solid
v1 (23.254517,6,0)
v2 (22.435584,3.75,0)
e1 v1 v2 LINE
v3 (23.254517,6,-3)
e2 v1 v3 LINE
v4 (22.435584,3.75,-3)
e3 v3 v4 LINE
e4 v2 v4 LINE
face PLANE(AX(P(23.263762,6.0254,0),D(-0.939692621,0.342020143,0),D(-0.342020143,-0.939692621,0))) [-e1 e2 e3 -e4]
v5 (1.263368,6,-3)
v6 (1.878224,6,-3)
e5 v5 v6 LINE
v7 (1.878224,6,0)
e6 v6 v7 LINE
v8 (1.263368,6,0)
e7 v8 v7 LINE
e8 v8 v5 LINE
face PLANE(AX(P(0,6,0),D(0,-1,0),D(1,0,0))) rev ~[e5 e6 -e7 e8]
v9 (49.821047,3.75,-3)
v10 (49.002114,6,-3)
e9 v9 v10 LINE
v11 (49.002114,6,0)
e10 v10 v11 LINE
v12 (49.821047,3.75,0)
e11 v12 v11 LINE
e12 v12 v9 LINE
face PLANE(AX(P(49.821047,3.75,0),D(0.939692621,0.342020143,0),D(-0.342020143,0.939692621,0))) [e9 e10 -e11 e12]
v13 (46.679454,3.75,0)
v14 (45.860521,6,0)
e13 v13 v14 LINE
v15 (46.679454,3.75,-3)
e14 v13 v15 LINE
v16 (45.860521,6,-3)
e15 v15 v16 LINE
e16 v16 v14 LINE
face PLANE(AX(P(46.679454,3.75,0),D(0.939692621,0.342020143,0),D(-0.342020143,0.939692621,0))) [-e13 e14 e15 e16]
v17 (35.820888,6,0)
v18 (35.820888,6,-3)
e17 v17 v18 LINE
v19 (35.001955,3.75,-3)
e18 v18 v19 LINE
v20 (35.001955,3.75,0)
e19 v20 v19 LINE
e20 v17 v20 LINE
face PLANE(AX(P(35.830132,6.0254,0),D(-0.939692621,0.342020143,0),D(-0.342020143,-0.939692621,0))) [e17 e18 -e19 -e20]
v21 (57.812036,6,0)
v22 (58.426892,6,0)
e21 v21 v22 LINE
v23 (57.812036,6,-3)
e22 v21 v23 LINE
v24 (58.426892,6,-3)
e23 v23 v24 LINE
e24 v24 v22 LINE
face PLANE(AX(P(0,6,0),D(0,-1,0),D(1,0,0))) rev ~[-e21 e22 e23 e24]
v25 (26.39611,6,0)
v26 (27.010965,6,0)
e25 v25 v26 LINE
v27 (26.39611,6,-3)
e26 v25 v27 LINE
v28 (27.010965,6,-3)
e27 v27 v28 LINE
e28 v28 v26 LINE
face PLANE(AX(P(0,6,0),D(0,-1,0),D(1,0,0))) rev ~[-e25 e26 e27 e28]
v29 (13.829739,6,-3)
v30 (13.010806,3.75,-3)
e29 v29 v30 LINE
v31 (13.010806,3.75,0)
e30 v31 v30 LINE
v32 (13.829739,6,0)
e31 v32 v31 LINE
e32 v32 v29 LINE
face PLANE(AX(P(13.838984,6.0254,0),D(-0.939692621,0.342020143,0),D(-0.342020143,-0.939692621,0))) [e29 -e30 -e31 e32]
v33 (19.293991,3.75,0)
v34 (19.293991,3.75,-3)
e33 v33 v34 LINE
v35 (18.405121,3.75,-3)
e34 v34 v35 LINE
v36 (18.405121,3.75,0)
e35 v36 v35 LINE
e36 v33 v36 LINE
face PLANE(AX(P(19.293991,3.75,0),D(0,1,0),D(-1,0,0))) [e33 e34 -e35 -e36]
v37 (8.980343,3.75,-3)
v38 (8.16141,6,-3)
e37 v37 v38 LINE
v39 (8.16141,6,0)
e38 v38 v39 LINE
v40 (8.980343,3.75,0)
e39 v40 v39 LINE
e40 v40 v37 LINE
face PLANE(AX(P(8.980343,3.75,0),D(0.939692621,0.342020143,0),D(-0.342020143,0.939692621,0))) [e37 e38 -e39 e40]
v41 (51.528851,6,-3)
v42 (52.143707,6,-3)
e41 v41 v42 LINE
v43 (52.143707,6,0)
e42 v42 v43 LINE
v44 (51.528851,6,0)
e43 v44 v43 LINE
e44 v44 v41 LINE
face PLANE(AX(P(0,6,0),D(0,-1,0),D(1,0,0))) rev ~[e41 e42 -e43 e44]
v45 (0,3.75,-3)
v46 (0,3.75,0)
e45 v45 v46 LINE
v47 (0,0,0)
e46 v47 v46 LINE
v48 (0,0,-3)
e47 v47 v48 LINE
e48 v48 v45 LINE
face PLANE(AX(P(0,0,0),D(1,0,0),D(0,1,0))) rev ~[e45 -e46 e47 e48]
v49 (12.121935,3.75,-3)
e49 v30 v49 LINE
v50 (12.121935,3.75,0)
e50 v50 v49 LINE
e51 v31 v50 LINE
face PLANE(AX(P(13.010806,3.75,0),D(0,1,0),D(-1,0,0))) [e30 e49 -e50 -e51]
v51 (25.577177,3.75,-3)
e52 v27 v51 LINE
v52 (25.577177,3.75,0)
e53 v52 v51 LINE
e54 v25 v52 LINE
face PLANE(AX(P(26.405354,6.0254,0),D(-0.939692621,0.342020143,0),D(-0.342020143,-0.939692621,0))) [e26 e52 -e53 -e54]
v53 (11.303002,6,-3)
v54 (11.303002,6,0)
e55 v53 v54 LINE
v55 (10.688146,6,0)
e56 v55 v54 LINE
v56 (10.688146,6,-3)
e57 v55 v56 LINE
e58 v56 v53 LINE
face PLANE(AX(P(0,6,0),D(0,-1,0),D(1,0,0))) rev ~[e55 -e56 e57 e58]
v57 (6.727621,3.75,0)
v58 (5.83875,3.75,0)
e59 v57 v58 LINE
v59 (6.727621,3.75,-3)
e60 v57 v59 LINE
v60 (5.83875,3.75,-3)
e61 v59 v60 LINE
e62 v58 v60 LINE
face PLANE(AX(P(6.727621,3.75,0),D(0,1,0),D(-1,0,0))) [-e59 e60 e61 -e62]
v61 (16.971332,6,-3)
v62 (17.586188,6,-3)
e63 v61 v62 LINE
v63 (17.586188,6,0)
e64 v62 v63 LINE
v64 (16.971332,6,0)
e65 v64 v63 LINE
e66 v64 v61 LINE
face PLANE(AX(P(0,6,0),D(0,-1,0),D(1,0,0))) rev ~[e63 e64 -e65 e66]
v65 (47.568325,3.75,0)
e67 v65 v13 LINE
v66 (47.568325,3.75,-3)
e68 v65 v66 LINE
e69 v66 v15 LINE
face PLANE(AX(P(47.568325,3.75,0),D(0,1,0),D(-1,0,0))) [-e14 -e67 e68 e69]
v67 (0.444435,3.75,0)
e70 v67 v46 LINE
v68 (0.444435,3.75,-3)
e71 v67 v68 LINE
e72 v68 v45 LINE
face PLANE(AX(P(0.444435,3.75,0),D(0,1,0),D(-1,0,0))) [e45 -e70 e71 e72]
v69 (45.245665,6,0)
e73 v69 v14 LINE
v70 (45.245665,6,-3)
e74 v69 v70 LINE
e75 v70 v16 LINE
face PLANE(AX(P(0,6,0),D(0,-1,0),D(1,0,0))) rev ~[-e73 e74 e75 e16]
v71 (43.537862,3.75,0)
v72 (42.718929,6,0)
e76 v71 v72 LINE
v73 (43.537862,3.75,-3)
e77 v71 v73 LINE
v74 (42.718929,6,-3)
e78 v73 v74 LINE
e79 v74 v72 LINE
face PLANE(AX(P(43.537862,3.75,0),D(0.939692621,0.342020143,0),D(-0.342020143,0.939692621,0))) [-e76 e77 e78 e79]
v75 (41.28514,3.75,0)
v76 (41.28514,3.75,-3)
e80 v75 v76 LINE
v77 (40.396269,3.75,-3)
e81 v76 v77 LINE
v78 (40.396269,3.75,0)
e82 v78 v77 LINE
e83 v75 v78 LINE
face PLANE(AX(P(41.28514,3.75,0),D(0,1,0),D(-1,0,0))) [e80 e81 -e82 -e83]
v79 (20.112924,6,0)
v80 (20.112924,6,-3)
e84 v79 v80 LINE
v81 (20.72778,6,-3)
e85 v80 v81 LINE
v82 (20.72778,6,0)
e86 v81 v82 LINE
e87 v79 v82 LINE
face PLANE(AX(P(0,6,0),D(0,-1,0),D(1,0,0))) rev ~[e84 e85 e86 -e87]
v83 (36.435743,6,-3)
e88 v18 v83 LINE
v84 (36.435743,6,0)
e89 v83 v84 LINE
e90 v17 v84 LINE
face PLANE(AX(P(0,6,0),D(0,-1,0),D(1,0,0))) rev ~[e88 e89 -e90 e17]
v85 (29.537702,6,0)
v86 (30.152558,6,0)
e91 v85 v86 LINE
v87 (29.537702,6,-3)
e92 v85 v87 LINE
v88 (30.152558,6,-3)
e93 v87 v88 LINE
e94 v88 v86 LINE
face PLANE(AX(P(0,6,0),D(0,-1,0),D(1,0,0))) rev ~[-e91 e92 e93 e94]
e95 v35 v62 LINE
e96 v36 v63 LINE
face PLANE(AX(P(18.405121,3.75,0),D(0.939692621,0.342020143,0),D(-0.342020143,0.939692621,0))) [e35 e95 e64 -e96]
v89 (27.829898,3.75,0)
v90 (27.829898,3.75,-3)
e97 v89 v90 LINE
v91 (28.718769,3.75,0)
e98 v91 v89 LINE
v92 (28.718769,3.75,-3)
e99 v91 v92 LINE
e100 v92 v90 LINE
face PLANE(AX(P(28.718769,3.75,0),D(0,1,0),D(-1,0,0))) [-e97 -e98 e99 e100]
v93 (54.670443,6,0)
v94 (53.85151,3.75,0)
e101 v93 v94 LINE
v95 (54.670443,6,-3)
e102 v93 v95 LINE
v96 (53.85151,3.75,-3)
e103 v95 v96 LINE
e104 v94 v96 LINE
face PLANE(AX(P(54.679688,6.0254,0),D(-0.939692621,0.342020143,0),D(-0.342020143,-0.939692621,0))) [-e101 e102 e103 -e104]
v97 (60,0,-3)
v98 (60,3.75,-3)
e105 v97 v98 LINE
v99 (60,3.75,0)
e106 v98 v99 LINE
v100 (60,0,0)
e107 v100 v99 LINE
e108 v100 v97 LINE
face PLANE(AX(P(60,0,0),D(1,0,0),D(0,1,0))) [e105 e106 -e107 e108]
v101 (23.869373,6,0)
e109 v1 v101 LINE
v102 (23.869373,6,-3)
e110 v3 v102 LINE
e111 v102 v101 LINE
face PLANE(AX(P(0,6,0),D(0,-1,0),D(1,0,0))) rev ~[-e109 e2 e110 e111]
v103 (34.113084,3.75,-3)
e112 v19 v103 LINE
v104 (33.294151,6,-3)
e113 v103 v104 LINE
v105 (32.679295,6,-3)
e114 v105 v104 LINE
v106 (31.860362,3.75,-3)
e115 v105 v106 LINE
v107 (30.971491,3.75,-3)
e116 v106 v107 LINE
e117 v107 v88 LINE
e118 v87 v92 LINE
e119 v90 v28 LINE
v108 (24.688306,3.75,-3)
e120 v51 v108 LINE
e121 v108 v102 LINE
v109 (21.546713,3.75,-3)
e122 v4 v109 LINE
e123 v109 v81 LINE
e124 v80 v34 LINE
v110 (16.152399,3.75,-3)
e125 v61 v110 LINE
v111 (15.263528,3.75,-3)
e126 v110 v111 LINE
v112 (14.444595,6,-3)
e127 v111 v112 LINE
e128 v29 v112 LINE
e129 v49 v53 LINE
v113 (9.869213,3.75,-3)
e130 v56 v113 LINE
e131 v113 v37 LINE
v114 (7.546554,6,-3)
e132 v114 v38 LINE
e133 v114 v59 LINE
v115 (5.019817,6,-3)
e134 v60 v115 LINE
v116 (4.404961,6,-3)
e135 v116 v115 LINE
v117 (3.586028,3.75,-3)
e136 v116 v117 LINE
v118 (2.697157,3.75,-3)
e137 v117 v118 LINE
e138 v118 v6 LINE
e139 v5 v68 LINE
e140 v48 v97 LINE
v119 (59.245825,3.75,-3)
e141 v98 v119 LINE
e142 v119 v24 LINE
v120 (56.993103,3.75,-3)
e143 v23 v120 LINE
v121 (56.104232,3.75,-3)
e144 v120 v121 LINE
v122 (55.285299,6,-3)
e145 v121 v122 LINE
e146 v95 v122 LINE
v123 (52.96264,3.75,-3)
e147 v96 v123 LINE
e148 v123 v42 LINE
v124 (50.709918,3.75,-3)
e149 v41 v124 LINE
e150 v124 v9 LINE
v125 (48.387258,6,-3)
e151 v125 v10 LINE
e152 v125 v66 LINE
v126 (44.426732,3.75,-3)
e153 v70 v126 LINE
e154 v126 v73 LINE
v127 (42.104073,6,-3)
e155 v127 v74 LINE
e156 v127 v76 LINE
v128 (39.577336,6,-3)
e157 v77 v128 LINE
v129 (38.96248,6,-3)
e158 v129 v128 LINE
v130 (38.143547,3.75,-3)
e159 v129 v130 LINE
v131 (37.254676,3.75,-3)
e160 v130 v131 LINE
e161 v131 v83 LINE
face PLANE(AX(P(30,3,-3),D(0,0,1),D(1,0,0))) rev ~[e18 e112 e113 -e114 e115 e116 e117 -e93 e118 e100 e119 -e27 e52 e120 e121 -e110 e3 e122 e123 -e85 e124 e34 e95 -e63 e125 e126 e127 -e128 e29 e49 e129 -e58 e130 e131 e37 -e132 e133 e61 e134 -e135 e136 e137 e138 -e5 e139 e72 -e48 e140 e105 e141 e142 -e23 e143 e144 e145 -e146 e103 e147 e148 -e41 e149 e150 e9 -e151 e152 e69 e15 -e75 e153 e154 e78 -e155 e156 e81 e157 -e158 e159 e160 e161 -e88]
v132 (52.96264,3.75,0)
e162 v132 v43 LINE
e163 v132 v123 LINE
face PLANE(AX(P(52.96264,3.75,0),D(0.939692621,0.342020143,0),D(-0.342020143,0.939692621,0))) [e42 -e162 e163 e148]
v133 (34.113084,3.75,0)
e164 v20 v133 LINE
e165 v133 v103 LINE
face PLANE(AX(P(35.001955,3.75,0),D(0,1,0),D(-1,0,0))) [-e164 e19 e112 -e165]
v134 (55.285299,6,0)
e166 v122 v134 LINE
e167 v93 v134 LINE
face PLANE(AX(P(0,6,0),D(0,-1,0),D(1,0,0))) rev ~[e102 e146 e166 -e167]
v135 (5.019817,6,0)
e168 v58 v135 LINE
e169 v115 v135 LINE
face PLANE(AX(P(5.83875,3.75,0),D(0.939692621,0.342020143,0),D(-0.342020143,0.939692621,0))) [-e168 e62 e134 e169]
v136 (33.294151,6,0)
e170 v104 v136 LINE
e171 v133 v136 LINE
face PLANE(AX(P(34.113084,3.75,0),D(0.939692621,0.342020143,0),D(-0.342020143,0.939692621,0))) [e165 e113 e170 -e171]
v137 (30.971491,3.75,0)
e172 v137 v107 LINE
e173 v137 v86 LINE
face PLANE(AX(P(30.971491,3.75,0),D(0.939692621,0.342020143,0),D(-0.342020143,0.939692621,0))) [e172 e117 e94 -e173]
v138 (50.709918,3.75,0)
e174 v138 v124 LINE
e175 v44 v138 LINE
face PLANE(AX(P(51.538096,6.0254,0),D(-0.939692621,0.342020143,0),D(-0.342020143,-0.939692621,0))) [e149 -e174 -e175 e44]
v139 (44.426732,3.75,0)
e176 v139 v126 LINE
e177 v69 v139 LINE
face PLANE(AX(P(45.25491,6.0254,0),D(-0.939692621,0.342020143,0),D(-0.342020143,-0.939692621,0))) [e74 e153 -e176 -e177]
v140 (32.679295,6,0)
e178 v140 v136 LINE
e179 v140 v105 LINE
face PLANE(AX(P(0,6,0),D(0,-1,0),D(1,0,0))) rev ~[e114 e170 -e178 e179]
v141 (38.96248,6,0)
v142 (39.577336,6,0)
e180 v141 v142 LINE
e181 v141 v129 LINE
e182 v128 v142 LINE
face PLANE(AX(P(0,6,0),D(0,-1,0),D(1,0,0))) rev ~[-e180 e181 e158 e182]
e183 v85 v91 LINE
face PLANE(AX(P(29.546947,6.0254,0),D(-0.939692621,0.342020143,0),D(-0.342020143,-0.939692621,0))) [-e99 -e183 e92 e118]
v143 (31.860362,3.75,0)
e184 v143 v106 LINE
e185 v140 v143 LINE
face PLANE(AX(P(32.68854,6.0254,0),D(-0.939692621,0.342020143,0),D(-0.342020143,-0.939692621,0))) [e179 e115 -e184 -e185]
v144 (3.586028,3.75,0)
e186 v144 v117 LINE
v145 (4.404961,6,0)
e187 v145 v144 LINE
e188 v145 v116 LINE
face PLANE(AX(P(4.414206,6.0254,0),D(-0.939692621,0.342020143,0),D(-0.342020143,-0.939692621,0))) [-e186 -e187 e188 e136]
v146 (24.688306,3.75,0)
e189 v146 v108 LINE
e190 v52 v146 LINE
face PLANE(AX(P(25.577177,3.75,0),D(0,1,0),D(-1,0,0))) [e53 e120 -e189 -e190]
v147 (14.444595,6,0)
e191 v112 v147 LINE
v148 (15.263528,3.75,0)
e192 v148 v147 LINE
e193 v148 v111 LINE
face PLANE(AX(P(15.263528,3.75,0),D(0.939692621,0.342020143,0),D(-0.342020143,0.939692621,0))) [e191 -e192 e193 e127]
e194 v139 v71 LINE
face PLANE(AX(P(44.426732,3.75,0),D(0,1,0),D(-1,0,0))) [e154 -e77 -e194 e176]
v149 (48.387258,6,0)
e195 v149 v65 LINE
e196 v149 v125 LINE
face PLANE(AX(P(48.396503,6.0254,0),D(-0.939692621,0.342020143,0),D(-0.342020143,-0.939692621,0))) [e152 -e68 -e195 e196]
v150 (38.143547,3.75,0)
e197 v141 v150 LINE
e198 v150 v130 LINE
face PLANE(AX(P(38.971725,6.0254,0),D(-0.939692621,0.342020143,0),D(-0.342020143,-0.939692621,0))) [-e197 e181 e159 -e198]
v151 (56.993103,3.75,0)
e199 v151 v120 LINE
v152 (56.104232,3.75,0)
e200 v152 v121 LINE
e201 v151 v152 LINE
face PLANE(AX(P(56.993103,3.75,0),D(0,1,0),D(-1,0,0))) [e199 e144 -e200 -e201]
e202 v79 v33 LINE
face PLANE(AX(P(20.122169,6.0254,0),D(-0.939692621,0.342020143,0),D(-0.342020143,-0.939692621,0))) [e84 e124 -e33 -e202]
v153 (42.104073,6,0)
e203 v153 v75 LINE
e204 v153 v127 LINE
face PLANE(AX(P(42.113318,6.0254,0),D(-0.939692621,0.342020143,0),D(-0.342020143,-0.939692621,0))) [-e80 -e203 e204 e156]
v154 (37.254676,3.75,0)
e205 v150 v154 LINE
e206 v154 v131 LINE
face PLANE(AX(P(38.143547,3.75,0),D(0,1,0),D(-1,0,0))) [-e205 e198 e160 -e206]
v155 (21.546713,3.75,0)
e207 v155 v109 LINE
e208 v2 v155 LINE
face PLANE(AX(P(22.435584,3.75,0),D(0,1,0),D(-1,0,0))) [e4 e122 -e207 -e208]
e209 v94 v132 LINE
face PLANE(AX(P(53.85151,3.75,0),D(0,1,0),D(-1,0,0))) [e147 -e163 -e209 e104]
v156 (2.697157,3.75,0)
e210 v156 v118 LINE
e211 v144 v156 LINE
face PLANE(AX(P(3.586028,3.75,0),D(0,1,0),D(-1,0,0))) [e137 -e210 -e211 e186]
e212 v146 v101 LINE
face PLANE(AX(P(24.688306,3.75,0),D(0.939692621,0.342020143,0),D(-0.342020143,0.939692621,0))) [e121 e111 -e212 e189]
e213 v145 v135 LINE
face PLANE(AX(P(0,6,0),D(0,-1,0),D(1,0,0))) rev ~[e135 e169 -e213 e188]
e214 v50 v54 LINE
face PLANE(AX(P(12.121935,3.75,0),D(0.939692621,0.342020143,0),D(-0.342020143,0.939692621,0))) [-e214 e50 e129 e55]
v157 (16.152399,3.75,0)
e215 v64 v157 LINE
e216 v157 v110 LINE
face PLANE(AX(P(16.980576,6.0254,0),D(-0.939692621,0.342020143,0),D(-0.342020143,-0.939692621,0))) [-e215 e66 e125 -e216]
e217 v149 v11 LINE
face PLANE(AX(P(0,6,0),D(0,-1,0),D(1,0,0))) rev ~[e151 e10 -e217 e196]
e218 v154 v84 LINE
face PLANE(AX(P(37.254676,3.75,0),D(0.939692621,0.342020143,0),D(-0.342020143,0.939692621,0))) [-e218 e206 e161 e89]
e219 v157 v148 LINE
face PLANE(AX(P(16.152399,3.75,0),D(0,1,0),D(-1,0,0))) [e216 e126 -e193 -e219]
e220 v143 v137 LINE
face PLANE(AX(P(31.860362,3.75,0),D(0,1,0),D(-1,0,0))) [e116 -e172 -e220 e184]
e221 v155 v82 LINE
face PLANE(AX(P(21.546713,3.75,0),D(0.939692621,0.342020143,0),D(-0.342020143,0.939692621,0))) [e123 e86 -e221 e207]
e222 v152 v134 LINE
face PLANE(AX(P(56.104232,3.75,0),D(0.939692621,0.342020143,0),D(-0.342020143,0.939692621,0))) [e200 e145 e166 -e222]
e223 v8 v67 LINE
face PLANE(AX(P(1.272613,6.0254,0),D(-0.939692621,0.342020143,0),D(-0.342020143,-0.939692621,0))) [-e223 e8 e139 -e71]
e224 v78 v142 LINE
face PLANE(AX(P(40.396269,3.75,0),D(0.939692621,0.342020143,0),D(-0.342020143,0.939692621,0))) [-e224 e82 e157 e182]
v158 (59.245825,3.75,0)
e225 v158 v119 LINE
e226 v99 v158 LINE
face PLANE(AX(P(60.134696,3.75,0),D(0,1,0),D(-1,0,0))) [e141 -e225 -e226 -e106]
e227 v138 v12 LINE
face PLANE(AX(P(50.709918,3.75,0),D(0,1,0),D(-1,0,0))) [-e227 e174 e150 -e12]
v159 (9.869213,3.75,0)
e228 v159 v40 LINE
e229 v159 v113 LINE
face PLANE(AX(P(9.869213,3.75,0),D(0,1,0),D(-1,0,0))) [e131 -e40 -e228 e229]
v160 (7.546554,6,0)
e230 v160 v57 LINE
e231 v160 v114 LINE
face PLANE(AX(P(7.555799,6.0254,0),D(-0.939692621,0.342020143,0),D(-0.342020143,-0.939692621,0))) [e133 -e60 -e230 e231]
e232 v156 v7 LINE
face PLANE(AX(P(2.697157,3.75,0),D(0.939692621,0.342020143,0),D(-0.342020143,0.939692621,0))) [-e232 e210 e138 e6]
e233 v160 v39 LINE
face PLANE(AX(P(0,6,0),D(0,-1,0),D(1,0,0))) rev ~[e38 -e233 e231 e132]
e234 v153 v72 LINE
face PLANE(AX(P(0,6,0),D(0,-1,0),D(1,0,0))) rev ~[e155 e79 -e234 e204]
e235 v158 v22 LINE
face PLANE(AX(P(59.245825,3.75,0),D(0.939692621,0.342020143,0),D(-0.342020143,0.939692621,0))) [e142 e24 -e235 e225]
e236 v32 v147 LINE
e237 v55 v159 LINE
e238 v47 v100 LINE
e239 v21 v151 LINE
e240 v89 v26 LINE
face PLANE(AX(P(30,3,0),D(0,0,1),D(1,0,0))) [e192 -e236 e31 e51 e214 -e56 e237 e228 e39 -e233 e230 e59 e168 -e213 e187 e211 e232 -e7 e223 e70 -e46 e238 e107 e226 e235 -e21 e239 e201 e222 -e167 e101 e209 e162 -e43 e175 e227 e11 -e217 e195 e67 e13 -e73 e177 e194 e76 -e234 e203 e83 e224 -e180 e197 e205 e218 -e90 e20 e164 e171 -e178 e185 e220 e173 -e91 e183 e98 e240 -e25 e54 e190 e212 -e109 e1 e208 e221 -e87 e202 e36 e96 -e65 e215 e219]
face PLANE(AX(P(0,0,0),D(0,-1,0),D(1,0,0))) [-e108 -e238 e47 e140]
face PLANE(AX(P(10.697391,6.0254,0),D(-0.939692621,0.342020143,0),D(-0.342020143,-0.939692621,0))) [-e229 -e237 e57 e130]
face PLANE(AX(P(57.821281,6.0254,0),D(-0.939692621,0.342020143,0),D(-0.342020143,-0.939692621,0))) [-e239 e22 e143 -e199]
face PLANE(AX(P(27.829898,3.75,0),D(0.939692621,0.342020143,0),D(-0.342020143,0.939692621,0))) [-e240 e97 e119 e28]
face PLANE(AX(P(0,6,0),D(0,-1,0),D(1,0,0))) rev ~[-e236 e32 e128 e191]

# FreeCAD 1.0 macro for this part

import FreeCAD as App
import Part
import Sketcher
Q = App.Units.Quantity

doc = App.newDocument("Part")
params = doc.addObject("Spreadsheet::Sheet", "Params")
for row, (alias, value) in enumerate([
    ("sketch1_width", "60 mm"),
    ("sketch1_height", "6 mm"),
    ("pad1_length", "3 mm"),
    ("linearpattern_pitch", "3.141593 mm"),
], start=1):
    params.set(f"A{row}", alias)
    params.set(f"B{row}", "=" + value)
    params.setAlias(f"B{row}", alias)

body = doc.addObject("PartDesign::Body", "Body")

sketch1 = doc.addObject("Sketcher::SketchObject", "Sketch")
body.addObject(sketch1)
sketch1.AttachmentSupport = (doc.XY_Plane, [""])
sketch1.MapMode = "FlatFace"
sketch1.addGeometry([
    Part.LineSegment(App.Vector(0, 6, 0), App.Vector(0, 0, 0)),
    Part.LineSegment(App.Vector(0, 0, 0), App.Vector(60, 0, 0)),
    Part.LineSegment(App.Vector(60, 0, 0), App.Vector(60, 6, 0)),
    Part.LineSegment(App.Vector(60, 6, 0), App.Vector(0, 6, 0)),
], False)
sketch1.addConstraint([
    Sketcher.Constraint("Coincident", 0, 2, 1, 1),
    Sketcher.Constraint("Coincident", 1, 2, 2, 1),
    Sketcher.Constraint("Coincident", 2, 2, 3, 1),
    Sketcher.Constraint("Coincident", 3, 2, 0, 1),
    Sketcher.Constraint("Vertical", 0),
    Sketcher.Constraint("Horizontal", 1),
    Sketcher.Constraint("Vertical", 2),
    Sketcher.Constraint("Horizontal", 3),
    Sketcher.Constraint("Coincident", 0, 2, -1, 1),
    Sketcher.Constraint("DistanceX", 1, 1, 1, 2, Q("60 mm")),
    Sketcher.Constraint("DistanceY", 0, 2, 0, 1, Q("6 mm")),
])
sketch1.setExpression("Constraints[9]", "Params.sketch1_width")
sketch1.setExpression("Constraints[10]", "Params.sketch1_height")
pad1 = doc.addObject("PartDesign::Pad", "Pad")
body.addObject(pad1)
pad1.Profile = sketch1
pad1.setExpression("Length", "Params.pad1_length")
pad1.Reversed = True

sketch2 = doc.addObject("Sketcher::SketchObject", "Sketch001")
body.addObject(sketch2)
sketch2.AttachmentSupport = (doc.XY_Plane, [""])
sketch2.MapMode = "FlatFace"
sketch2.addGeometry([
    Part.LineSegment(App.Vector(-0.444435, 3.75, 0), App.Vector(0.444435, 3.75, 0)),
    Part.LineSegment(App.Vector(0.444435, 3.75, 0), App.Vector(1.272613, 6.0254, 0)),
    Part.LineSegment(App.Vector(1.272613, 6.0254, 0), App.Vector(-1.272613, 6.0254, 0)),
    Part.LineSegment(App.Vector(-1.272613, 6.0254, 0), App.Vector(-0.444435, 3.75, 0)),
], False)
sketch2.addConstraint([
    Sketcher.Constraint("Coincident", 0, 2, 1, 1),
    Sketcher.Constraint("Coincident", 1, 2, 2, 1),
    Sketcher.Constraint("Coincident", 2, 2, 3, 1),
    Sketcher.Constraint("Coincident", 3, 2, 0, 1),
    Sketcher.Constraint("Horizontal", 0),
    Sketcher.Constraint("Horizontal", 2),
    Sketcher.Constraint("Equal", 1, 3),
    Sketcher.Constraint("Angle", 1, Q("70 deg")),
    Sketcher.Constraint("DistanceY", -1, 1, 0, 2, Q("3.75 mm")),
    Sketcher.Constraint("DistanceX", 0, 1, 0, 2, Q("0.888871 mm")),
    Sketcher.Constraint("DistanceY", -1, 1, 1, 2, Q("6.0254 mm")),
    Sketcher.Constraint("DistanceX", -1, 1, 0, 2, Q("0.444435 mm")),
])
pocket1 = doc.addObject("PartDesign::Pocket", "Pocket")
body.addObject(pocket1)
pocket1.Profile = sketch2
pocket1.Type = "ThroughAll"
doc.recompute()

linearpattern = doc.addObject("PartDesign::LinearPattern", "LinearPattern")
body.addObject(linearpattern)
linearpattern.Originals = [pocket1]
linearpattern.Direction = (doc.X_Axis, [""])
linearpattern.Mode = "offset"
linearpattern.setExpression("Offset", "Params.linearpattern_pitch")
linearpattern.Occurrences = 20
body.Tip = linearpattern

doc.recompute()
